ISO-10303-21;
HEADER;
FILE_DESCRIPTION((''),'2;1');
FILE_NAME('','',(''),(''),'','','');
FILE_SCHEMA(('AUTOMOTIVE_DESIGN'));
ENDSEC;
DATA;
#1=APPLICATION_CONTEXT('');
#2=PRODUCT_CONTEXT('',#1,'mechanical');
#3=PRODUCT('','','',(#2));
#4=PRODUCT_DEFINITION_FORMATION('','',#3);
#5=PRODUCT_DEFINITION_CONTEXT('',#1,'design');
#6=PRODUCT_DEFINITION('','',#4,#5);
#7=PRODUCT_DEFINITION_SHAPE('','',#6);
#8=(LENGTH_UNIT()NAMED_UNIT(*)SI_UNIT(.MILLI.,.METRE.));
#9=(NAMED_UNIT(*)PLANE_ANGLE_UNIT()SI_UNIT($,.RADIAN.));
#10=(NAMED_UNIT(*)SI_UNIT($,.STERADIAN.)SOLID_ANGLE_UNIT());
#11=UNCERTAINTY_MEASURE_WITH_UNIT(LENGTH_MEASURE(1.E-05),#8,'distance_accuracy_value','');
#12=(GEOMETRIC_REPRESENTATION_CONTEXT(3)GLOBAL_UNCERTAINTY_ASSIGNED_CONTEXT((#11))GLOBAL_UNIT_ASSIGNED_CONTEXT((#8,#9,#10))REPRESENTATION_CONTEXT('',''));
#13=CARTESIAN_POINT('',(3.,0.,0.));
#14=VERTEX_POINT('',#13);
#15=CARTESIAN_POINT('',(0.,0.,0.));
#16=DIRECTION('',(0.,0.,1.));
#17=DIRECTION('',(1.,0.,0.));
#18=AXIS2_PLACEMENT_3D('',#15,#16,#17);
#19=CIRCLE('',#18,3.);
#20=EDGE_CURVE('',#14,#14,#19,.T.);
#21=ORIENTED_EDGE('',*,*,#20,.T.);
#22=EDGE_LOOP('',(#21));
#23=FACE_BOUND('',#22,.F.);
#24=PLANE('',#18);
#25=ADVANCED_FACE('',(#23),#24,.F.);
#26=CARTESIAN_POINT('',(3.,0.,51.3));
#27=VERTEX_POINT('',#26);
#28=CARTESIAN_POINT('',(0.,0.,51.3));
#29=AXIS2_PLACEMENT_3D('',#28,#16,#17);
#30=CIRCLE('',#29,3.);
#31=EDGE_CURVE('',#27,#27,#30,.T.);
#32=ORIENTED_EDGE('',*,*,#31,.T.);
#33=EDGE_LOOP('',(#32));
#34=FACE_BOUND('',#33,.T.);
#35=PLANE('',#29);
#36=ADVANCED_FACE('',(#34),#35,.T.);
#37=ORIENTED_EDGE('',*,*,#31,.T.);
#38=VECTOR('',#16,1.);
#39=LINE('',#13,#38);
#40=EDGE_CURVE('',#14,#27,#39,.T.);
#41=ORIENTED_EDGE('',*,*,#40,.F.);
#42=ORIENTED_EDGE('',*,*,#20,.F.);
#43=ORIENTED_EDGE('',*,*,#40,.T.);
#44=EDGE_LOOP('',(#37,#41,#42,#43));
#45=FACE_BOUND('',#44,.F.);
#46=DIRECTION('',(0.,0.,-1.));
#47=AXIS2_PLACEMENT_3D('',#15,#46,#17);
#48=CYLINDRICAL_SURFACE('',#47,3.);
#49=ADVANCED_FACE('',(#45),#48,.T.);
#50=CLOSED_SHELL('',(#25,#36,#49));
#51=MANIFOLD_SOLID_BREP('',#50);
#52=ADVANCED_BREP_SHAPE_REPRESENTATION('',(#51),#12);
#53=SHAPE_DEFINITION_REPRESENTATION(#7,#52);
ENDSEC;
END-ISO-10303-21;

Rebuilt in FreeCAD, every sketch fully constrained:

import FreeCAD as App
import Part
import Sketcher
from FreeCAD import Vector

doc = App.newDocument("Part")
body = doc.addObject("PartDesign::Body", "Body")

sketch1 = body.newObject("Sketcher::SketchObject", "Sketch")
sketch1.AttachmentSupport = (doc.getObject("XY_Plane"), [""])
sketch1.MapMode = "FlatFace"
sketch1.addGeometry(Part.Circle(Vector(0, 0, 0), Vector(0, 0, 1), 3), False)
sketch1.addConstraint([
    Sketcher.Constraint("Coincident", 0, 3, -1, 1),
    Sketcher.Constraint("Diameter", 0, 6.0),
])
pad1 = body.newObject("PartDesign::Pad", "Pad")
pad1.Profile = sketch1
pad1.Length = 51.3

doc.recompute()
